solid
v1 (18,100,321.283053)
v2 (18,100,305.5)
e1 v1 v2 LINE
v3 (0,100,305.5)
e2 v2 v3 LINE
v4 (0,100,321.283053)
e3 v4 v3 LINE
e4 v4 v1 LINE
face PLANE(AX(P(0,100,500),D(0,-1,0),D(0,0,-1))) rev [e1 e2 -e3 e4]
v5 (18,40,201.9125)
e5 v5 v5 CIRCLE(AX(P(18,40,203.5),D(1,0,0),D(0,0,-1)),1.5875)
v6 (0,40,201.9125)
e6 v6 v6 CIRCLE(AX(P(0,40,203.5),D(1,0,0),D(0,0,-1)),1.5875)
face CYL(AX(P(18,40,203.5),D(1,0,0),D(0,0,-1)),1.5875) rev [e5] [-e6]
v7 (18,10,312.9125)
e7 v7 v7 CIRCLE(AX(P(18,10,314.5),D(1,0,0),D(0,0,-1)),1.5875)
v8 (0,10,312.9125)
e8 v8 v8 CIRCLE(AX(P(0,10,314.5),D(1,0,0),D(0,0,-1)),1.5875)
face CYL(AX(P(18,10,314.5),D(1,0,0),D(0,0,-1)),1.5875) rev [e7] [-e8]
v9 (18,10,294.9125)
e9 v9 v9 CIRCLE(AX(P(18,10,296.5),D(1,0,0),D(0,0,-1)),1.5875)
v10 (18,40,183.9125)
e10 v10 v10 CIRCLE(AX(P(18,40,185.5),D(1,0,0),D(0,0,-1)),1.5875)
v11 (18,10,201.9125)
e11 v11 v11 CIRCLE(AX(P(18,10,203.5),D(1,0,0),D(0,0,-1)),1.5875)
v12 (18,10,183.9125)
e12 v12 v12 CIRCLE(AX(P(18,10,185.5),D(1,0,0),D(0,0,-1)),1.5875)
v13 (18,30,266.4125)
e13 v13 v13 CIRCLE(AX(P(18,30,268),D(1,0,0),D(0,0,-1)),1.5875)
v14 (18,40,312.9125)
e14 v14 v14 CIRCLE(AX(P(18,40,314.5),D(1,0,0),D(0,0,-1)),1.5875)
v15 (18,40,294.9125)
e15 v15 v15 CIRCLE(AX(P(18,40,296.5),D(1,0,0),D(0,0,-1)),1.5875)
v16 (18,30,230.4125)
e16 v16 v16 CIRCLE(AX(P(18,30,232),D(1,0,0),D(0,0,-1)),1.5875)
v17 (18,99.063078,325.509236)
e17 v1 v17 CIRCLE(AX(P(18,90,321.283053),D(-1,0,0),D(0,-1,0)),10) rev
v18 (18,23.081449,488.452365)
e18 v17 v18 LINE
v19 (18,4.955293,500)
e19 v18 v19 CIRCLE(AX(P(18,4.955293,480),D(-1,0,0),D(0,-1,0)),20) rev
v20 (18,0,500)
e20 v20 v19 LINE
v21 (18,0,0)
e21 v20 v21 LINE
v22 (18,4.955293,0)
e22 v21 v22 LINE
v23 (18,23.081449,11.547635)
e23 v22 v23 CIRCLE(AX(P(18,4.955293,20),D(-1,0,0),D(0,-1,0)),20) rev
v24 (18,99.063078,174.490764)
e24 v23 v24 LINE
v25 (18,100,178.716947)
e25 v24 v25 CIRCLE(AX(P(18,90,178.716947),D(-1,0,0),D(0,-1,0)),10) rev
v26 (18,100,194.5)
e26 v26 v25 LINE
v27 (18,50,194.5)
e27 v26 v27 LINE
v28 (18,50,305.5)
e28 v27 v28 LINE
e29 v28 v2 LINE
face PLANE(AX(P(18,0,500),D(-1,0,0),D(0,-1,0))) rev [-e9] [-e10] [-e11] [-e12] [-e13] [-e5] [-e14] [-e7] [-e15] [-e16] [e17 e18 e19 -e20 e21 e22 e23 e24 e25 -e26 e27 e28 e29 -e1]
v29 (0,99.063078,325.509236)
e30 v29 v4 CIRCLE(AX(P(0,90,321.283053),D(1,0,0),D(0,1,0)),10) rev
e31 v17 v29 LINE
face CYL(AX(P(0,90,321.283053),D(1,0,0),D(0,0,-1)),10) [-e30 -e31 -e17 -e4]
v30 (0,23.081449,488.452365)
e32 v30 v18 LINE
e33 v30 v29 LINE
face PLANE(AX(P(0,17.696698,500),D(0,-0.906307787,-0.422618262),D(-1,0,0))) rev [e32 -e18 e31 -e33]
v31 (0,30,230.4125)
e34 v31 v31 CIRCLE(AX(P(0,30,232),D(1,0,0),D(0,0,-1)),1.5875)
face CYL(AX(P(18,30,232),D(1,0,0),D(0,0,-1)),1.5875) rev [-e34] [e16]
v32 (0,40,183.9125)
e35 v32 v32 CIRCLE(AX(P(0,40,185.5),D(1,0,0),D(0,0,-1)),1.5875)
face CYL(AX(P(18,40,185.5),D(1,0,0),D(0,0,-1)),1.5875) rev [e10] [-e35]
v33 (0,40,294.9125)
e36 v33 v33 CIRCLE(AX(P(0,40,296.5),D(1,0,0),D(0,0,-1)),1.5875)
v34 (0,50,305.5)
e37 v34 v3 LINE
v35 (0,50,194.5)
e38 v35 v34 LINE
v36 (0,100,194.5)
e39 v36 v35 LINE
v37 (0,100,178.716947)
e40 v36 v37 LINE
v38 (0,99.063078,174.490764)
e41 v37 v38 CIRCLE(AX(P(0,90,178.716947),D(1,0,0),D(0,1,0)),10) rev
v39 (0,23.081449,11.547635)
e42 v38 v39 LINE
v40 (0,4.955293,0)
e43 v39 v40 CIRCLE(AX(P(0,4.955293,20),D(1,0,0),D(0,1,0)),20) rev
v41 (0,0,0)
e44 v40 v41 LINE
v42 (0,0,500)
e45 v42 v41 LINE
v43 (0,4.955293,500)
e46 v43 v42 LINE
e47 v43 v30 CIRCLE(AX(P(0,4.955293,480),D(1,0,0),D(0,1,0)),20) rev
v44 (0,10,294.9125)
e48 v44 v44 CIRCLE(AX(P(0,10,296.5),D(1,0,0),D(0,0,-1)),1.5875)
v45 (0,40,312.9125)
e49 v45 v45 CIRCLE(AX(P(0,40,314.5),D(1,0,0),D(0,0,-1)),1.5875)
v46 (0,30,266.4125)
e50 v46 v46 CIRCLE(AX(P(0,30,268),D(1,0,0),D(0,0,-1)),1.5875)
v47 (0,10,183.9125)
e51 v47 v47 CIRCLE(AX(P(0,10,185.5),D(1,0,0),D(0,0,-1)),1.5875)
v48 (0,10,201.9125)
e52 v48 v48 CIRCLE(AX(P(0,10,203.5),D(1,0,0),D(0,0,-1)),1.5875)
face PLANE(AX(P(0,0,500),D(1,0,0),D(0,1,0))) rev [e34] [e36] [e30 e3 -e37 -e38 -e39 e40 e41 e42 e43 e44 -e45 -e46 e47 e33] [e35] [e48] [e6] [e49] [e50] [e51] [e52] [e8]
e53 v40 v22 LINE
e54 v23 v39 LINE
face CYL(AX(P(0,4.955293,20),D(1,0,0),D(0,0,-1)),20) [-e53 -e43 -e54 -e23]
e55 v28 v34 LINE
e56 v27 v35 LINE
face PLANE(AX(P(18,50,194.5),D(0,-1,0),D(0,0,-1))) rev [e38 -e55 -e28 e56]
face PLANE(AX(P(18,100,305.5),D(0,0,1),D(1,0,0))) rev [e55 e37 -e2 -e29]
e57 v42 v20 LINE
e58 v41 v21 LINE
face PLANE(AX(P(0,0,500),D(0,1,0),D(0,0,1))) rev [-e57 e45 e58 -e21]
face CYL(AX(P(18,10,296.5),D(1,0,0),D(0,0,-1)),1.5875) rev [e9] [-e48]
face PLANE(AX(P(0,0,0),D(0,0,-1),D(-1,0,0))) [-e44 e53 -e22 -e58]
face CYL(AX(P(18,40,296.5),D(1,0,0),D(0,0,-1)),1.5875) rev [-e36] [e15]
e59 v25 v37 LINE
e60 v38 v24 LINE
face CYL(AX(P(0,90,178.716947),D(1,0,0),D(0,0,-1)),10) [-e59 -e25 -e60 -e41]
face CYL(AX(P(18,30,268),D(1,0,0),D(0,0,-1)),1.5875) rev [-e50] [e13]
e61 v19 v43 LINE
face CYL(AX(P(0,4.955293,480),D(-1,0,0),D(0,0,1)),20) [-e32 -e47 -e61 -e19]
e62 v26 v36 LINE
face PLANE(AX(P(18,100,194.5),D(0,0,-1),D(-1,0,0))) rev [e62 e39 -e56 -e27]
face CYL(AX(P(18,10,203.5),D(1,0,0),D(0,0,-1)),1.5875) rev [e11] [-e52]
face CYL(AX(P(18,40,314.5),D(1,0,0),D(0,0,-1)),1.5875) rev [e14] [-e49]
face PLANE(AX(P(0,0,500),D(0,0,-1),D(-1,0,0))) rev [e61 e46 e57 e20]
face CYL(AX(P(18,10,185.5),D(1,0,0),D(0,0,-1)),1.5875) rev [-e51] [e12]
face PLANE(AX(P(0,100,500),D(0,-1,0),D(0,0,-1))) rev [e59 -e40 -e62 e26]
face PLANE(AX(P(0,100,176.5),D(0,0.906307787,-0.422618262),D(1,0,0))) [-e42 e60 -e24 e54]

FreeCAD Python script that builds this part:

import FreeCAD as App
import Part
import Sketcher

V = App.Vector


def edges_at(feature, points):
    """Names of the edges that pass closest to the given points."""
    edges = feature.Shape.Edges
    near = lambda p: min(range(len(edges)), key=lambda i: edges[i].distToShape(Part.Vertex(*p))[0])
    return sorted({f"Edge{near(p) + 1}" for p in points})


def add_polygon(sketch, points):
    """Adds a closed chain of lines whose ends are joined by coincident constraints."""
    first, n = sketch.GeometryCount, len(points)
    for a, b in zip(points, points[1:] + points[:1]):
        sketch.addGeometry(Part.LineSegment(App.Vector(*a, 0), App.Vector(*b, 0)), False)
    for i in range(n):
        sketch.addConstraint(Sketcher.Constraint("Coincident", first + i, 2, first + (i + 1) % n, 1))

doc = App.newDocument("Part")
body = doc.addObject("PartDesign::Body", "Body")

sketch1 = doc.addObject("Sketcher::SketchObject", "Sketch")
body.addObject(sketch1)
sketch1.AttachmentSupport = (doc.XY_Plane, [""])
sketch1.MapMode = "FlatFace"
add_polygon(sketch1, [(0, 100), (0, 0), (18, 0), (18, 100)])
sketch1.addConstraint([
    Sketcher.Constraint("Vertical", 0),
    Sketcher.Constraint("Horizontal", 1),
    Sketcher.Constraint("Vertical", 2),
    Sketcher.Constraint("Horizontal", 3),
    Sketcher.Constraint("Coincident", 0, 2, -1, 1),
    Sketcher.Constraint("DistanceX", 1, 1, 1, 2, 18.0),
    Sketcher.Constraint("DistanceY", 0, 2, 0, 1, 100.0),
])
pad1 = doc.addObject("PartDesign::Pad", "Pad")
body.addObject(pad1)
pad1.Profile = sketch1
pad1.Length = 500

sketch2 = doc.addObject("Sketcher::SketchObject", "Sketch001")
body.addObject(sketch2)
sketch2.AttachmentSupport = (doc.YZ_Plane, [""])
sketch2.MapMode = "FlatFace"
add_polygon(sketch2, [(100, 194.5), (50, 194.5), (50, 305.5), (100, 305.5)])
sketch2.addConstraint([
    Sketcher.Constraint("Horizontal", 0),
    Sketcher.Constraint("Vertical", 1),
    Sketcher.Constraint("Horizontal", 2),
    Sketcher.Constraint("Vertical", 3),
    Sketcher.Constraint("DistanceX", 0, 2, 0, 1, 50.0),
    Sketcher.Constraint("DistanceY", 1, 1, 1, 2, 111.0),
    Sketcher.Constraint("DistanceX", -1, 1, 0, 2, 50.0),
    Sketcher.Constraint("DistanceY", -1, 1, 0, 2, 194.5),
])
pocket1 = doc.addObject("PartDesign::Pocket", "Pocket")
body.addObject(pocket1)
pocket1.Profile = sketch2
pocket1.Type = "ThroughAll"
pocket1.Reversed = True

sketch3 = doc.addObject("Sketcher::SketchObject", "Sketch002")
body.addObject(sketch3)
sketch3.AttachmentSupport = (doc.YZ_Plane, [""])
sketch3.MapMode = "FlatFace"
sketch3.AttachmentOffset = App.Placement(V(0, 0, 18), App.Rotation())
sketch3.addGeometry([
    Part.Circle(V(40, 296.5, 0), V(0, 0, 1), 1.5875),
    Part.Circle(V(10, 203.5, 0), V(0, 0, 1), 1.5875),
    Part.Circle(V(10, 296.5, 0), V(0, 0, 1), 1.5875),
    Part.Circle(V(40, 203.5, 0), V(0, 0, 1), 1.5875),
], False)
sketch3.addConstraint([
    Sketcher.Constraint("Equal", 0, 1),
    Sketcher.Constraint("Equal", 1, 2),
    Sketcher.Constraint("Equal", 2, 3),
    Sketcher.Constraint("Horizontal", 0, 3, 2, 3),
    Sketcher.Constraint("Horizontal", 1, 3, 3, 3),
    Sketcher.Constraint("Vertical", 1, 3, 2, 3),
    Sketcher.Constraint("Vertical", 0, 3, 3, 3),
    Sketcher.Constraint("Diameter", 0, 3.175),
    Sketcher.Constraint("DistanceX", -1, 1, 0, 3, 40.0),
    Sketcher.Constraint("DistanceX", -1, 1, 1, 3, 10.0),
    Sketcher.Constraint("DistanceY", 1, 3, 0, 3, 93.0),
    Sketcher.Constraint("DistanceY", -1, 1, 0, 3, 296.5),
])
doc.recompute()
hole = doc.addObject("PartDesign::Hole", "Hole")
body.addObject(hole)
hole.Profile = sketch3
hole.ThreadType = "None"
hole.Diameter = 3.175
hole.DepthType = "ThroughAll"
doc.recompute()

chamfer = doc.addObject("PartDesign::Chamfer", "Chamfer")
body.addObject(chamfer)
chamfer.Base = (hole, edges_at(hole, [(9, 100, 0)]))
chamfer.ChamferType = "Two distances"
chamfer.Size = 176.5
chamfer.Size2 = 82.303302
chamfer.FlipDirection = True
doc.recompute()

chamfer2 = doc.addObject("PartDesign::Chamfer", "Chamfer001")
body.addObject(chamfer2)
chamfer2.Base = (chamfer, edges_at(chamfer, [(9, 100, 500)]))
chamfer2.ChamferType = "Two distances"
chamfer2.Size = 176.5
chamfer2.Size2 = 82.303302
chamfer2.FlipDirection = True
doc.recompute()

fillet = doc.addObject("PartDesign::Fillet", "Fillet")
body.addObject(fillet)
fillet.Base = (chamfer2, edges_at(chamfer2, [(9, 17.697, 0), (9, 17.697, 500)]))
fillet.Radius = 20

sketch4 = doc.addObject("Sketcher::SketchObject", "Sketch003")
body.addObject(sketch4)
sketch4.AttachmentSupport = (doc.YZ_Plane, [""])
sketch4.MapMode = "FlatFace"
sketch4.AttachmentOffset = App.Placement(V(0, 0, 18), App.Rotation())
sketch4.addGeometry([
    Part.Circle(V(40, 314.5, 0), V(0, 0, 1), 1.5875),
    Part.Circle(V(10, 314.5, 0), V(0, 0, 1), 1.5875),
], False)
sketch4.addConstraint([
    Sketcher.Constraint("Equal", 0, 1),
    Sketcher.Constraint("Horizontal", 0, 3, 1, 3),
    Sketcher.Constraint("Diameter", 0, 3.175),
    Sketcher.Constraint("DistanceX", -1, 1, 0, 3, 40.0),
    Sketcher.Constraint("DistanceX", -1, 1, 1, 3, 10.0),
    Sketcher.Constraint("DistanceY", -1, 1, 0, 3, 314.5),
])
doc.recompute()
hole2 = doc.addObject("PartDesign::Hole", "Hole001")
body.addObject(hole2)
hole2.Profile = sketch4
hole2.ThreadType = "None"
hole2.Diameter = 3.175
hole2.DepthType = "ThroughAll"
doc.recompute()

datumplane = doc.addObject("PartDesign::Plane", "DatumPlane")
body.addObject(datumplane)
datumplane.AttachmentSupport = (doc.XY_Plane, [""])
datumplane.MapMode = "FlatFace"
datumplane.AttachmentOffset = App.Placement(V(0, 0, 250), App.Rotation())
mirrored = doc.addObject("PartDesign::Mirrored", "Mirrored")
body.addObject(mirrored)
mirrored.Originals = [hole2]
mirrored.MirrorPlane = (datumplane, [""])
body.Tip = mirrored
doc.recompute()

fillet2 = doc.addObject("PartDesign::Fillet", "Fillet001")
body.addObject(fillet2)
fillet2.Base = (mirrored, edges_at(mirrored, [(9, 100, 176.5), (9, 100, 323.5)]))
fillet2.Radius = 10

sketch5 = doc.addObject("Sketcher::SketchObject", "Sketch004")
body.addObject(sketch5)
sketch5.AttachmentSupport = (doc.YZ_Plane, [""])
sketch5.MapMode = "FlatFace"
sketch5.AttachmentOffset = App.Placement(V(0, 0, 18), App.Rotation())
sketch5.addGeometry([
    Part.Circle(V(30, 268, 0), V(0, 0, 1), 1.5875),
    Part.Circle(V(30, 232, 0), V(0, 0, 1), 1.5875),
], False)
sketch5.addConstraint([
    Sketcher.Constraint("Equal", 0, 1),
    Sketcher.Constraint("Vertical", 0, 3, 1, 3),
    Sketcher.Constraint("Diameter", 0, 3.175),
    Sketcher.Constraint("DistanceX", -1, 1, 0, 3, 30.0),
    Sketcher.Constraint("DistanceY", -1, 1, 0, 3, 268.0),
    Sketcher.Constraint("DistanceY", -1, 1, 1, 3, 232.0),
])
doc.recompute()
hole3 = doc.addObject("PartDesign::Hole", "Hole002")
body.addObject(hole3)
hole3.Profile = sketch5
hole3.ThreadType = "None"
hole3.Diameter = 3.175
hole3.DepthType = "ThroughAll"

doc.recompute()
